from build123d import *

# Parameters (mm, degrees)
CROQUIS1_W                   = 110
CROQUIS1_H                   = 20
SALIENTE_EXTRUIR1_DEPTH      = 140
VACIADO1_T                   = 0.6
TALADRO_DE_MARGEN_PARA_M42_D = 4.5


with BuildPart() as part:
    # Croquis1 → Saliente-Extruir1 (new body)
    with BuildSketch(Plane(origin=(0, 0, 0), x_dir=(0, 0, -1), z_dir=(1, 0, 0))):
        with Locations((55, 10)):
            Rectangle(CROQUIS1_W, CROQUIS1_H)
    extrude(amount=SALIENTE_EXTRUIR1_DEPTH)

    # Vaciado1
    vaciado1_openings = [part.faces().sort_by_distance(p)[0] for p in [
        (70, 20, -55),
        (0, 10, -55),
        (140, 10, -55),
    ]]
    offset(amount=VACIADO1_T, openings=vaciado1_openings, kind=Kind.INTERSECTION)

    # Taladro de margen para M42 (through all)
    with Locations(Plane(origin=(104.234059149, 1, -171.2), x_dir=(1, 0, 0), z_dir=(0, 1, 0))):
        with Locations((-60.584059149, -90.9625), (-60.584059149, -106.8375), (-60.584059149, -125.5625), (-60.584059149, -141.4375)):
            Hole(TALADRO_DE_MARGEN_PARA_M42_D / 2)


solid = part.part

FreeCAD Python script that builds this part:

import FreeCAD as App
import Part
import Sketcher
from FreeCAD import Vector


def faces_at(feature, points):
    """Names of the faces that lie closest to the given points."""
    faces = feature.Shape.Faces
    near = lambda p: min(range(len(faces)), key=lambda i: faces[i].distToShape(Part.Vertex(*p))[0])
    return sorted({f"Face{near(p) + 1}" for p in points})

doc = App.newDocument("Part")
body = doc.addObject("PartDesign::Body", "Body")

sketch1 = body.newObject("Sketcher::SketchObject", "Sketch")
sketch1.AttachmentSupport = (doc.getObject("YZ_Plane"), [""])
sketch1.MapMode = "FlatFace"
sketch1.addGeometry([
    Part.LineSegment(Vector(20, 0, 0), Vector(0, 0, 0)),
    Part.LineSegment(Vector(0, 0, 0), Vector(0, -110, 0)),
    Part.LineSegment(Vector(0, -110, 0), Vector(20, -110, 0)),
    Part.LineSegment(Vector(20, -110, 0), Vector(20, 0, 0)),
], False)
sketch1.addConstraint([
    Sketcher.Constraint("Coincident", 0, 2, 1, 1),
    Sketcher.Constraint("Coincident", 1, 2, 2, 1),
    Sketcher.Constraint("Coincident", 2, 2, 3, 1),
    Sketcher.Constraint("Coincident", 3, 2, 0, 1),
    Sketcher.Constraint("Horizontal", 0),
    Sketcher.Constraint("Vertical", 1),
    Sketcher.Constraint("Horizontal", 2),
    Sketcher.Constraint("Vertical", 3),
    Sketcher.Constraint("Coincident", 0, 2, -1, 1),
    Sketcher.Constraint("DistanceX", 0, 2, 0, 1, 20.0),
    Sketcher.Constraint("DistanceY", 1, 2, 1, 1, 110.0),
])
pad1 = body.newObject("PartDesign::Pad", "Pad")
pad1.Profile = sketch1
pad1.Length = 140
doc.recompute()

thickness = body.newObject("PartDesign::Thickness", "Thickness")
thickness.Base = (pad1, faces_at(pad1, [(70, 20, -55), (0, 10, -55), (140, 10, -55)]))
thickness.Value = 0.6
thickness.Reversed = False
thickness.Join = "Intersection"

sketch2 = body.newObject("Sketcher::SketchObject", "Sketch001")
sketch2.AttachmentSupport = (doc.getObject("XZ_Plane"), [""])
sketch2.MapMode = "FlatFace"
sketch2.AttachmentOffset = App.Placement(Vector(0, 0, -1), App.Rotation())
sketch2.addGeometry([
    Part.Circle(Vector(43.6, -80.2, 0), Vector(0, 0, 1), 2.2),
    Part.Circle(Vector(43.6, -64.4, 0), Vector(0, 0, 1), 2.2),
    Part.Circle(Vector(43.6, -45.6, 0), Vector(0, 0, 1), 2.2),
    Part.Circle(Vector(43.6, -29.8, 0), Vector(0, 0, 1), 2.2),
], False)
sketch2.addConstraint([
    Sketcher.Constraint("Equal", 0, 1),
    Sketcher.Constraint("Equal", 1, 2),
    Sketcher.Constraint("Equal", 2, 3),
    Sketcher.Constraint("Vertical", 0, 3, 1, 3),
    Sketcher.Constraint("Vertical", 1, 3, 2, 3),
    Sketcher.Constraint("Vertical", 2, 3, 3, 3),
    Sketcher.Constraint("Diameter", 0, 4.5),
    Sketcher.Constraint("DistanceY", 0, 3, 2, 3, 34.6),
    Sketcher.Constraint("DistanceY", 1, 3, 3, 3, 34.6),
    Sketcher.Constraint("DistanceX", -1, 1, 0, 3, 43.65),
    Sketcher.Constraint("DistanceY", 0, 3, 1, 3, 15.875),
    Sketcher.Constraint("DistanceY", 0, 3, -1, 1, 80.2375),
])
doc.recompute()
hole = body.newObject("PartDesign::Hole", "Hole")
hole.Profile = sketch2
hole.ThreadType = "None"
hole.Diameter = 4.5
hole.DepthType = "ThroughAll"
hole.Reversed = True

doc.recompute()
